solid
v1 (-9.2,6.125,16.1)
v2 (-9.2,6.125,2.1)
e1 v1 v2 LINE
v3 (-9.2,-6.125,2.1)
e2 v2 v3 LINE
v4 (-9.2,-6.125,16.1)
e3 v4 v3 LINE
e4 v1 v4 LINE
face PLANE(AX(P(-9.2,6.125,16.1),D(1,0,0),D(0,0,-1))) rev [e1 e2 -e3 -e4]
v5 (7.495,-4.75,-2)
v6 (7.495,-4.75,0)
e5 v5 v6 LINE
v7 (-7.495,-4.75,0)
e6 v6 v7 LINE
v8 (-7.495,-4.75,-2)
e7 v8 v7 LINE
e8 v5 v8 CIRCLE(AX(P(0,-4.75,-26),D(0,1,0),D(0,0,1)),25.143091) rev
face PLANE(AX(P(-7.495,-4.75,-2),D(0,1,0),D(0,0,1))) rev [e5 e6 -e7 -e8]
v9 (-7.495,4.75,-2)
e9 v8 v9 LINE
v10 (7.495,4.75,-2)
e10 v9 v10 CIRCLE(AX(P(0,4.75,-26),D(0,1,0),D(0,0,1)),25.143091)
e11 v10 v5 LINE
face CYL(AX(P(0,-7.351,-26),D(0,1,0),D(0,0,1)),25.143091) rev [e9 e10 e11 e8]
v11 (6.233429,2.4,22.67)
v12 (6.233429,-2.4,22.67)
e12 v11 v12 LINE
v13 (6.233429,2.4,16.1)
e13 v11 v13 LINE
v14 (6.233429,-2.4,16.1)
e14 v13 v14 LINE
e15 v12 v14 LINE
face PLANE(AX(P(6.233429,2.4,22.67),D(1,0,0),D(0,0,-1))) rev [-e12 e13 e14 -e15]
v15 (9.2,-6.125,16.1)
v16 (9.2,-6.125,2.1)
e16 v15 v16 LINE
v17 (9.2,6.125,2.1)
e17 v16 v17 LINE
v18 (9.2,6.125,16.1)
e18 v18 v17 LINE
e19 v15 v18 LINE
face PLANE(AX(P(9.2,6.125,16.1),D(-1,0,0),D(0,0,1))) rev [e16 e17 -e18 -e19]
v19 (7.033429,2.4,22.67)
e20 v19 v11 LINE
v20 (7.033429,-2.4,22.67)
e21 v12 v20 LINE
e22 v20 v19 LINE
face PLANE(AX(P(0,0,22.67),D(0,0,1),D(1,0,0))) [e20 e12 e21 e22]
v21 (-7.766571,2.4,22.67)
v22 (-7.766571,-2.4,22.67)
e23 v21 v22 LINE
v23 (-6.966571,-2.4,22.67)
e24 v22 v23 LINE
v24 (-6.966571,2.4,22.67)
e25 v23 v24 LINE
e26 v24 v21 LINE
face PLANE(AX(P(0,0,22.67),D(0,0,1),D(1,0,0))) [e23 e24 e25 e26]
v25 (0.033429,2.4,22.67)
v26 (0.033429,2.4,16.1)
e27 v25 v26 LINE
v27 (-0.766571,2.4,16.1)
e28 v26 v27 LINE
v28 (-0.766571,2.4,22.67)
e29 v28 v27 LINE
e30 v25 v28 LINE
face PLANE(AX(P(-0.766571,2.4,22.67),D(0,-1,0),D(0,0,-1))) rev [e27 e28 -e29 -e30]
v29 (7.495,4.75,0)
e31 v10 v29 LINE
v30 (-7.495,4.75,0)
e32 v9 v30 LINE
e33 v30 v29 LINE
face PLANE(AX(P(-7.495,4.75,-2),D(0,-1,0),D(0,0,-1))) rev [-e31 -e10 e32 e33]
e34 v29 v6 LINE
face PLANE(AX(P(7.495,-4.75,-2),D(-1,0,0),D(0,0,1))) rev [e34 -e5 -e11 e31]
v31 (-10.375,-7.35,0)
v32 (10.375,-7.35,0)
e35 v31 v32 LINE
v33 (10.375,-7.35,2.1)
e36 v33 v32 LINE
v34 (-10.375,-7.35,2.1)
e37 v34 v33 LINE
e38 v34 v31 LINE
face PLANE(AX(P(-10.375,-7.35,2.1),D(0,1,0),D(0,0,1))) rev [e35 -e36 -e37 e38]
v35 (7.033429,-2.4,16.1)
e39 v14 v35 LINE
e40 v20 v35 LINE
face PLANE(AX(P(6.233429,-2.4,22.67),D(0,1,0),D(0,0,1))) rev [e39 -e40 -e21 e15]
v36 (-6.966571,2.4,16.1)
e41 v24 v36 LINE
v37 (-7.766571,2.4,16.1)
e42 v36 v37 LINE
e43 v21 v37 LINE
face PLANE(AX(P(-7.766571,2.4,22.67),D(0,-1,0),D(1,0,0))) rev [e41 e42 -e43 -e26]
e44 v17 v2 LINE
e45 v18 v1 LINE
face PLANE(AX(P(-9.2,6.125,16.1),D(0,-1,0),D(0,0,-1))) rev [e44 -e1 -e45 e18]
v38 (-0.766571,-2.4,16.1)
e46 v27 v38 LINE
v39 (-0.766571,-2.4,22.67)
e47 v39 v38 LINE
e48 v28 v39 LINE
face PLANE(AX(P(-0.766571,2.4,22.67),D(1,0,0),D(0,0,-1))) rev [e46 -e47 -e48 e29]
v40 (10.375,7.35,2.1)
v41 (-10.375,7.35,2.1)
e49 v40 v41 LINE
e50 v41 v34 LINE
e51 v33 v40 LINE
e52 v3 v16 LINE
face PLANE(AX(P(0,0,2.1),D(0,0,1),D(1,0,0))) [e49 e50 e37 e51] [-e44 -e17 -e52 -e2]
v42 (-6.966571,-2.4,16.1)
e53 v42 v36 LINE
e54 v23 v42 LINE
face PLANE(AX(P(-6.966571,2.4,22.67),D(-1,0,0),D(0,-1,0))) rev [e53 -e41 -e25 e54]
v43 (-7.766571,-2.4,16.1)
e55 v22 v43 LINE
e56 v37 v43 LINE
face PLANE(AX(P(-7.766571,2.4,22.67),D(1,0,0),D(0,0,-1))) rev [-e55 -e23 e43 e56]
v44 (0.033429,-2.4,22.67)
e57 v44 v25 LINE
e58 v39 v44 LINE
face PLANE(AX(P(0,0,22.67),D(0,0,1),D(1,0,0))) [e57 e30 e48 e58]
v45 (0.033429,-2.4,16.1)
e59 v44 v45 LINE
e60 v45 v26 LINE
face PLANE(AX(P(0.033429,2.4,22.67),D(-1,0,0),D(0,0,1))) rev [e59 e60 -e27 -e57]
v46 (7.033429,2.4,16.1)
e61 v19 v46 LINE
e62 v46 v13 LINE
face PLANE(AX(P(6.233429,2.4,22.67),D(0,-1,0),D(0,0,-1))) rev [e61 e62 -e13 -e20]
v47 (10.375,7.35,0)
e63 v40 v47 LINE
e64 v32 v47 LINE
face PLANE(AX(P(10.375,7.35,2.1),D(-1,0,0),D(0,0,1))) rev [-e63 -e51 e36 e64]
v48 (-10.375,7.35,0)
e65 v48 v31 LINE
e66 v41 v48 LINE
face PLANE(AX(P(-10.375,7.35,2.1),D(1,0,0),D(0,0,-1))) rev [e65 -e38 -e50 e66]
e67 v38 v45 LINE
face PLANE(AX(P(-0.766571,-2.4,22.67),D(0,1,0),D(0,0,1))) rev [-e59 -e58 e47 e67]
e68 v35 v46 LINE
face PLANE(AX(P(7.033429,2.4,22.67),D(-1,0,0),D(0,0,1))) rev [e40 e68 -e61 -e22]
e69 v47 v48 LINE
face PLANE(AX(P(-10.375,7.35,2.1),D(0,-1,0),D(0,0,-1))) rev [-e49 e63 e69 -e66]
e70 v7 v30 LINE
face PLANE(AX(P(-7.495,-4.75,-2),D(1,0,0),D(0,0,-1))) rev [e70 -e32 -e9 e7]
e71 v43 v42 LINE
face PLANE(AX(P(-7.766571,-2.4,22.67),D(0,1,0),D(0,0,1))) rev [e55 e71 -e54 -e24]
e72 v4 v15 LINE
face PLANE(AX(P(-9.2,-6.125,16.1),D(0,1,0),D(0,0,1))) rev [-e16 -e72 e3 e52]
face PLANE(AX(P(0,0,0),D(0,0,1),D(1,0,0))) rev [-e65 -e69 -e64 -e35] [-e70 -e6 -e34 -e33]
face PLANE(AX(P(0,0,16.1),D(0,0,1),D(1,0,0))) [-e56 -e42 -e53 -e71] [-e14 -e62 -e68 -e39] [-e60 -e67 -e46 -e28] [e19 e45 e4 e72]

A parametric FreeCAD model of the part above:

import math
import FreeCAD as App
import Part
import Sketcher
from FreeCAD import Vector
Q = App.Units.Quantity

doc = App.newDocument("Part")
body = doc.addObject("PartDesign::Body", "Body")

# Sketch on XY plane
sketch1 = body.newObject("Sketcher::SketchObject", "Sketch")
sketch1.AttachmentSupport = (doc.getObject("XY_Plane"), [""])
sketch1.MapMode = "FlatFace"
sketch1.addGeometry([
    Part.LineSegment(Vector(-10.375, 7.35, 0), Vector(-10.375, -7.35, 0)),
    Part.LineSegment(Vector(-10.375, -7.35, 0), Vector(10.375, -7.35, 0)),
    Part.LineSegment(Vector(10.375, -7.35, 0), Vector(10.375, 7.35, 0)),
    Part.LineSegment(Vector(10.375, 7.35, 0), Vector(-10.375, 7.35, 0)),
], False)
sketch1.addConstraint([
    Sketcher.Constraint("Coincident", 0, 2, 1, 1),
    Sketcher.Constraint("Coincident", 1, 2, 2, 1),
    Sketcher.Constraint("Coincident", 2, 2, 3, 1),
    Sketcher.Constraint("Coincident", 3, 2, 0, 1),
    Sketcher.Constraint("Vertical", 0),
    Sketcher.Constraint("Horizontal", 1),
    Sketcher.Constraint("Vertical", 2),
    Sketcher.Constraint("Horizontal", 3),
    Sketcher.Constraint("Symmetric", 0, 2, 2, 2, -1, 1),
    Sketcher.Constraint("DistanceY", 0, 2, 0, 1, Q("14.7 mm")),
    Sketcher.Constraint("DistanceX", 1, 1, 1, 2, Q("20.75 mm")),
])
pad1 = body.newObject("PartDesign::Pad", "Pad")
pad1.Profile = sketch1
pad1.Length = 2.1

# Sketch on XY plane
sketch2 = body.newObject("Sketcher::SketchObject", "Sketch001")
sketch2.AttachmentSupport = (doc.getObject("XY_Plane"), [""])
sketch2.MapMode = "FlatFace"
sketch2.AttachmentOffset = App.Placement(Vector(0, 0, 2.1), App.Rotation())
sketch2.addGeometry([
    Part.LineSegment(Vector(-9.2, 6.125, 0), Vector(-9.2, -6.125, 0)),
    Part.LineSegment(Vector(-9.2, -6.125, 0), Vector(9.2, -6.125, 0)),
    Part.LineSegment(Vector(9.2, -6.125, 0), Vector(9.2, 6.125, 0)),
    Part.LineSegment(Vector(9.2, 6.125, 0), Vector(-9.2, 6.125, 0)),
], False)
sketch2.addConstraint([
    Sketcher.Constraint("Coincident", 0, 2, 1, 1),
    Sketcher.Constraint("Coincident", 1, 2, 2, 1),
    Sketcher.Constraint("Coincident", 2, 2, 3, 1),
    Sketcher.Constraint("Coincident", 3, 2, 0, 1),
    Sketcher.Constraint("Vertical", 0),
    Sketcher.Constraint("Horizontal", 1),
    Sketcher.Constraint("Vertical", 2),
    Sketcher.Constraint("Horizontal", 3),
    Sketcher.Constraint("Symmetric", 0, 2, 2, 2, -1, 1),
    Sketcher.Constraint("DistanceX", 1, 1, 1, 2, Q("18.4 mm")),
    Sketcher.Constraint("DistanceY", 0, 2, 0, 1, Q("12.25 mm")),
])
pad2 = body.newObject("PartDesign::Pad", "Pad001")
pad2.Profile = sketch2
pad2.Length = 14

# Sketch on XY plane
sketch3 = body.newObject("Sketcher::SketchObject", "Sketch002")
sketch3.AttachmentSupport = (doc.getObject("XY_Plane"), [""])
sketch3.MapMode = "FlatFace"
sketch3.AttachmentOffset = App.Placement(Vector(0, 0, 16.1), App.Rotation())
sketch3.addGeometry([
    Part.LineSegment(Vector(-0.766571, 2.4, 0), Vector(-0.766571, -2.4, 0)),  # 0
    Part.LineSegment(Vector(-0.766571, -2.4, 0), Vector(0.033429, -2.4, 0)),  # 1
    Part.LineSegment(Vector(0.033429, -2.4, 0), Vector(0.033429, 2.4, 0)),  # 2
    Part.LineSegment(Vector(0.033429, 2.4, 0), Vector(-0.766571, 2.4, 0)),  # 3
    Part.LineSegment(Vector(6.233429, 2.4, 0), Vector(6.233429, -2.4, 0)),  # 4
    Part.LineSegment(Vector(6.233429, -2.4, 0), Vector(7.033429, -2.4, 0)),  # 5
    Part.LineSegment(Vector(7.033429, -2.4, 0), Vector(7.033429, 2.4, 0)),  # 6
    Part.LineSegment(Vector(7.033429, 2.4, 0), Vector(6.233429, 2.4, 0)),  # 7
    Part.LineSegment(Vector(-7.766571, 2.4, 0), Vector(-7.766571, -2.4, 0)),  # 8
    Part.LineSegment(Vector(-7.766571, -2.4, 0), Vector(-6.966571, -2.4, 0)),  # 9
    Part.LineSegment(Vector(-6.966571, -2.4, 0), Vector(-6.966571, 2.4, 0)),  # 10
    Part.LineSegment(Vector(-6.966571, 2.4, 0), Vector(-7.766571, 2.4, 0)),  # 11
], False)
sketch3.addConstraint([
    Sketcher.Constraint("Coincident", 0, 2, 1, 1),
    Sketcher.Constraint("Coincident", 1, 2, 2, 1),
    Sketcher.Constraint("Coincident", 2, 2, 3, 1),
    Sketcher.Constraint("Coincident", 3, 2, 0, 1),
    Sketcher.Constraint("Coincident", 4, 2, 5, 1),
    Sketcher.Constraint("Coincident", 5, 2, 6, 1),
    Sketcher.Constraint("Coincident", 6, 2, 7, 1),
    Sketcher.Constraint("Coincident", 7, 2, 4, 1),
    Sketcher.Constraint("Coincident", 8, 2, 9, 1),
    Sketcher.Constraint("Coincident", 9, 2, 10, 1),
    Sketcher.Constraint("Coincident", 10, 2, 11, 1),
    Sketcher.Constraint("Coincident", 11, 2, 8, 1),
    Sketcher.Constraint("Vertical", 0),
    Sketcher.Constraint("Horizontal", 1),
    Sketcher.Constraint("Vertical", 2),
    Sketcher.Constraint("Horizontal", 3),
    Sketcher.Constraint("Vertical", 4),
    Sketcher.Constraint("Horizontal", 5),
    Sketcher.Constraint("Vertical", 6),
    Sketcher.Constraint("Horizontal", 7),
    Sketcher.Constraint("Vertical", 8),
    Sketcher.Constraint("Horizontal", 9),
    Sketcher.Constraint("Vertical", 10),
    Sketcher.Constraint("Horizontal", 11),
    Sketcher.Constraint("Horizontal", 1, 2, 4, 2),
    Sketcher.Constraint("Horizontal", 3, 2, 6, 2),
    Sketcher.Constraint("Horizontal", 5, 2, 8, 2),
    Sketcher.Constraint("Horizontal", 7, 2, 10, 2),
    Sketcher.Constraint("Equal", 3, 5),
    Sketcher.Constraint("Equal", 7, 9),
    Sketcher.Constraint("DistanceX", 1, 1, 1, 2, Q("0.8 mm")),
    Sketcher.Constraint("DistanceY", 0, 2, 0, 1, Q("4.8 mm")),
    Sketcher.Constraint("DistanceX", 0, 2, 4, 2, Q("7 mm")),
    Sketcher.Constraint("DistanceX", 8, 2, 0, 2, Q("7 mm")),
    Sketcher.Constraint("DistanceY", 0, 2, -1, 1, Q("2.4 mm")),
    Sketcher.Constraint("DistanceX", 0, 2, -1, 1, Q("0.766571 mm")),
])
pad3 = body.newObject("PartDesign::Pad", "Pad002")
pad3.Profile = sketch3
pad3.Length = 6.57

# Sketch on XY plane
sketch4 = body.newObject("Sketcher::SketchObject", "Sketch003")
sketch4.AttachmentSupport = (doc.getObject("XY_Plane"), [""])
sketch4.MapMode = "FlatFace"
sketch4.addGeometry([
    Part.LineSegment(Vector(7.495, 4.75, 0), Vector(7.495, -4.75, 0)),
    Part.LineSegment(Vector(7.495, -4.75, 0), Vector(-7.495, -4.75, 0)),
    Part.LineSegment(Vector(-7.495, -4.75, 0), Vector(-7.495, 4.75, 0)),
    Part.LineSegment(Vector(-7.495, 4.75, 0), Vector(7.495, 4.75, 0)),
], False)
sketch4.addConstraint([
    Sketcher.Constraint("Coincident", 0, 2, 1, 1),
    Sketcher.Constraint("Coincident", 1, 2, 2, 1),
    Sketcher.Constraint("Coincident", 2, 2, 3, 1),
    Sketcher.Constraint("Coincident", 3, 2, 0, 1),
    Sketcher.Constraint("Vertical", 0),
    Sketcher.Constraint("Horizontal", 1),
    Sketcher.Constraint("Vertical", 2),
    Sketcher.Constraint("Horizontal", 3),
    Sketcher.Constraint("Symmetric", 0, 2, 2, 2, -1, 1),
    Sketcher.Constraint("DistanceY", 0, 2, 0, 1, Q("9.5 mm")),
    Sketcher.Constraint("DistanceX", 1, 2, 1, 1, Q("14.99 mm")),
])
pad4 = body.newObject("PartDesign::Pad", "Pad003")
pad4.Profile = sketch4
pad4.Length = 2
pad4.Reversed = True

# Sketch on XZ plane
sketch5 = body.newObject("Sketcher::SketchObject", "Sketch004")
sketch5.AttachmentSupport = (doc.getObject("XZ_Plane"), [""])
sketch5.MapMode = "FlatFace"
sketch5.AttachmentOffset = App.Placement(Vector(0, 0, -4.75), App.Rotation())
sketch5.addGeometry([
    Part.LineSegment(Vector(7.495, -2, 0), Vector(-7.495, -2, 0)),
    Part.ArcOfCircle(Part.Circle(Vector(0, -26, 0), Vector(0, 0, 1), 25.143091), math.radians(72.656851), math.radians(107.343149)),
], False)
sketch5.addConstraint([
    Sketcher.Constraint("Coincident", 0, 1, 1, 1),
    Sketcher.Constraint("Coincident", 1, 2, 0, 2),
    Sketcher.Constraint("Horizontal", 0),
    Sketcher.Constraint("PointOnObject", 1, 3, -2),
    Sketcher.Constraint("DistanceY", 1, 3, -1, 1, Q("26 mm")),
    Sketcher.Constraint("DistanceY", 0, 1, -1, 1, Q("2 mm")),
    Sketcher.Constraint("DistanceX", 0, 2, 0, 1, Q("14.99 mm")),
])
pocket1 = body.newObject("PartDesign::Pocket", "Pocket")
pocket1.Profile = sketch5
pocket1.Type = "UpToFirst"
pocket1.Reversed = True

doc.recompute()
